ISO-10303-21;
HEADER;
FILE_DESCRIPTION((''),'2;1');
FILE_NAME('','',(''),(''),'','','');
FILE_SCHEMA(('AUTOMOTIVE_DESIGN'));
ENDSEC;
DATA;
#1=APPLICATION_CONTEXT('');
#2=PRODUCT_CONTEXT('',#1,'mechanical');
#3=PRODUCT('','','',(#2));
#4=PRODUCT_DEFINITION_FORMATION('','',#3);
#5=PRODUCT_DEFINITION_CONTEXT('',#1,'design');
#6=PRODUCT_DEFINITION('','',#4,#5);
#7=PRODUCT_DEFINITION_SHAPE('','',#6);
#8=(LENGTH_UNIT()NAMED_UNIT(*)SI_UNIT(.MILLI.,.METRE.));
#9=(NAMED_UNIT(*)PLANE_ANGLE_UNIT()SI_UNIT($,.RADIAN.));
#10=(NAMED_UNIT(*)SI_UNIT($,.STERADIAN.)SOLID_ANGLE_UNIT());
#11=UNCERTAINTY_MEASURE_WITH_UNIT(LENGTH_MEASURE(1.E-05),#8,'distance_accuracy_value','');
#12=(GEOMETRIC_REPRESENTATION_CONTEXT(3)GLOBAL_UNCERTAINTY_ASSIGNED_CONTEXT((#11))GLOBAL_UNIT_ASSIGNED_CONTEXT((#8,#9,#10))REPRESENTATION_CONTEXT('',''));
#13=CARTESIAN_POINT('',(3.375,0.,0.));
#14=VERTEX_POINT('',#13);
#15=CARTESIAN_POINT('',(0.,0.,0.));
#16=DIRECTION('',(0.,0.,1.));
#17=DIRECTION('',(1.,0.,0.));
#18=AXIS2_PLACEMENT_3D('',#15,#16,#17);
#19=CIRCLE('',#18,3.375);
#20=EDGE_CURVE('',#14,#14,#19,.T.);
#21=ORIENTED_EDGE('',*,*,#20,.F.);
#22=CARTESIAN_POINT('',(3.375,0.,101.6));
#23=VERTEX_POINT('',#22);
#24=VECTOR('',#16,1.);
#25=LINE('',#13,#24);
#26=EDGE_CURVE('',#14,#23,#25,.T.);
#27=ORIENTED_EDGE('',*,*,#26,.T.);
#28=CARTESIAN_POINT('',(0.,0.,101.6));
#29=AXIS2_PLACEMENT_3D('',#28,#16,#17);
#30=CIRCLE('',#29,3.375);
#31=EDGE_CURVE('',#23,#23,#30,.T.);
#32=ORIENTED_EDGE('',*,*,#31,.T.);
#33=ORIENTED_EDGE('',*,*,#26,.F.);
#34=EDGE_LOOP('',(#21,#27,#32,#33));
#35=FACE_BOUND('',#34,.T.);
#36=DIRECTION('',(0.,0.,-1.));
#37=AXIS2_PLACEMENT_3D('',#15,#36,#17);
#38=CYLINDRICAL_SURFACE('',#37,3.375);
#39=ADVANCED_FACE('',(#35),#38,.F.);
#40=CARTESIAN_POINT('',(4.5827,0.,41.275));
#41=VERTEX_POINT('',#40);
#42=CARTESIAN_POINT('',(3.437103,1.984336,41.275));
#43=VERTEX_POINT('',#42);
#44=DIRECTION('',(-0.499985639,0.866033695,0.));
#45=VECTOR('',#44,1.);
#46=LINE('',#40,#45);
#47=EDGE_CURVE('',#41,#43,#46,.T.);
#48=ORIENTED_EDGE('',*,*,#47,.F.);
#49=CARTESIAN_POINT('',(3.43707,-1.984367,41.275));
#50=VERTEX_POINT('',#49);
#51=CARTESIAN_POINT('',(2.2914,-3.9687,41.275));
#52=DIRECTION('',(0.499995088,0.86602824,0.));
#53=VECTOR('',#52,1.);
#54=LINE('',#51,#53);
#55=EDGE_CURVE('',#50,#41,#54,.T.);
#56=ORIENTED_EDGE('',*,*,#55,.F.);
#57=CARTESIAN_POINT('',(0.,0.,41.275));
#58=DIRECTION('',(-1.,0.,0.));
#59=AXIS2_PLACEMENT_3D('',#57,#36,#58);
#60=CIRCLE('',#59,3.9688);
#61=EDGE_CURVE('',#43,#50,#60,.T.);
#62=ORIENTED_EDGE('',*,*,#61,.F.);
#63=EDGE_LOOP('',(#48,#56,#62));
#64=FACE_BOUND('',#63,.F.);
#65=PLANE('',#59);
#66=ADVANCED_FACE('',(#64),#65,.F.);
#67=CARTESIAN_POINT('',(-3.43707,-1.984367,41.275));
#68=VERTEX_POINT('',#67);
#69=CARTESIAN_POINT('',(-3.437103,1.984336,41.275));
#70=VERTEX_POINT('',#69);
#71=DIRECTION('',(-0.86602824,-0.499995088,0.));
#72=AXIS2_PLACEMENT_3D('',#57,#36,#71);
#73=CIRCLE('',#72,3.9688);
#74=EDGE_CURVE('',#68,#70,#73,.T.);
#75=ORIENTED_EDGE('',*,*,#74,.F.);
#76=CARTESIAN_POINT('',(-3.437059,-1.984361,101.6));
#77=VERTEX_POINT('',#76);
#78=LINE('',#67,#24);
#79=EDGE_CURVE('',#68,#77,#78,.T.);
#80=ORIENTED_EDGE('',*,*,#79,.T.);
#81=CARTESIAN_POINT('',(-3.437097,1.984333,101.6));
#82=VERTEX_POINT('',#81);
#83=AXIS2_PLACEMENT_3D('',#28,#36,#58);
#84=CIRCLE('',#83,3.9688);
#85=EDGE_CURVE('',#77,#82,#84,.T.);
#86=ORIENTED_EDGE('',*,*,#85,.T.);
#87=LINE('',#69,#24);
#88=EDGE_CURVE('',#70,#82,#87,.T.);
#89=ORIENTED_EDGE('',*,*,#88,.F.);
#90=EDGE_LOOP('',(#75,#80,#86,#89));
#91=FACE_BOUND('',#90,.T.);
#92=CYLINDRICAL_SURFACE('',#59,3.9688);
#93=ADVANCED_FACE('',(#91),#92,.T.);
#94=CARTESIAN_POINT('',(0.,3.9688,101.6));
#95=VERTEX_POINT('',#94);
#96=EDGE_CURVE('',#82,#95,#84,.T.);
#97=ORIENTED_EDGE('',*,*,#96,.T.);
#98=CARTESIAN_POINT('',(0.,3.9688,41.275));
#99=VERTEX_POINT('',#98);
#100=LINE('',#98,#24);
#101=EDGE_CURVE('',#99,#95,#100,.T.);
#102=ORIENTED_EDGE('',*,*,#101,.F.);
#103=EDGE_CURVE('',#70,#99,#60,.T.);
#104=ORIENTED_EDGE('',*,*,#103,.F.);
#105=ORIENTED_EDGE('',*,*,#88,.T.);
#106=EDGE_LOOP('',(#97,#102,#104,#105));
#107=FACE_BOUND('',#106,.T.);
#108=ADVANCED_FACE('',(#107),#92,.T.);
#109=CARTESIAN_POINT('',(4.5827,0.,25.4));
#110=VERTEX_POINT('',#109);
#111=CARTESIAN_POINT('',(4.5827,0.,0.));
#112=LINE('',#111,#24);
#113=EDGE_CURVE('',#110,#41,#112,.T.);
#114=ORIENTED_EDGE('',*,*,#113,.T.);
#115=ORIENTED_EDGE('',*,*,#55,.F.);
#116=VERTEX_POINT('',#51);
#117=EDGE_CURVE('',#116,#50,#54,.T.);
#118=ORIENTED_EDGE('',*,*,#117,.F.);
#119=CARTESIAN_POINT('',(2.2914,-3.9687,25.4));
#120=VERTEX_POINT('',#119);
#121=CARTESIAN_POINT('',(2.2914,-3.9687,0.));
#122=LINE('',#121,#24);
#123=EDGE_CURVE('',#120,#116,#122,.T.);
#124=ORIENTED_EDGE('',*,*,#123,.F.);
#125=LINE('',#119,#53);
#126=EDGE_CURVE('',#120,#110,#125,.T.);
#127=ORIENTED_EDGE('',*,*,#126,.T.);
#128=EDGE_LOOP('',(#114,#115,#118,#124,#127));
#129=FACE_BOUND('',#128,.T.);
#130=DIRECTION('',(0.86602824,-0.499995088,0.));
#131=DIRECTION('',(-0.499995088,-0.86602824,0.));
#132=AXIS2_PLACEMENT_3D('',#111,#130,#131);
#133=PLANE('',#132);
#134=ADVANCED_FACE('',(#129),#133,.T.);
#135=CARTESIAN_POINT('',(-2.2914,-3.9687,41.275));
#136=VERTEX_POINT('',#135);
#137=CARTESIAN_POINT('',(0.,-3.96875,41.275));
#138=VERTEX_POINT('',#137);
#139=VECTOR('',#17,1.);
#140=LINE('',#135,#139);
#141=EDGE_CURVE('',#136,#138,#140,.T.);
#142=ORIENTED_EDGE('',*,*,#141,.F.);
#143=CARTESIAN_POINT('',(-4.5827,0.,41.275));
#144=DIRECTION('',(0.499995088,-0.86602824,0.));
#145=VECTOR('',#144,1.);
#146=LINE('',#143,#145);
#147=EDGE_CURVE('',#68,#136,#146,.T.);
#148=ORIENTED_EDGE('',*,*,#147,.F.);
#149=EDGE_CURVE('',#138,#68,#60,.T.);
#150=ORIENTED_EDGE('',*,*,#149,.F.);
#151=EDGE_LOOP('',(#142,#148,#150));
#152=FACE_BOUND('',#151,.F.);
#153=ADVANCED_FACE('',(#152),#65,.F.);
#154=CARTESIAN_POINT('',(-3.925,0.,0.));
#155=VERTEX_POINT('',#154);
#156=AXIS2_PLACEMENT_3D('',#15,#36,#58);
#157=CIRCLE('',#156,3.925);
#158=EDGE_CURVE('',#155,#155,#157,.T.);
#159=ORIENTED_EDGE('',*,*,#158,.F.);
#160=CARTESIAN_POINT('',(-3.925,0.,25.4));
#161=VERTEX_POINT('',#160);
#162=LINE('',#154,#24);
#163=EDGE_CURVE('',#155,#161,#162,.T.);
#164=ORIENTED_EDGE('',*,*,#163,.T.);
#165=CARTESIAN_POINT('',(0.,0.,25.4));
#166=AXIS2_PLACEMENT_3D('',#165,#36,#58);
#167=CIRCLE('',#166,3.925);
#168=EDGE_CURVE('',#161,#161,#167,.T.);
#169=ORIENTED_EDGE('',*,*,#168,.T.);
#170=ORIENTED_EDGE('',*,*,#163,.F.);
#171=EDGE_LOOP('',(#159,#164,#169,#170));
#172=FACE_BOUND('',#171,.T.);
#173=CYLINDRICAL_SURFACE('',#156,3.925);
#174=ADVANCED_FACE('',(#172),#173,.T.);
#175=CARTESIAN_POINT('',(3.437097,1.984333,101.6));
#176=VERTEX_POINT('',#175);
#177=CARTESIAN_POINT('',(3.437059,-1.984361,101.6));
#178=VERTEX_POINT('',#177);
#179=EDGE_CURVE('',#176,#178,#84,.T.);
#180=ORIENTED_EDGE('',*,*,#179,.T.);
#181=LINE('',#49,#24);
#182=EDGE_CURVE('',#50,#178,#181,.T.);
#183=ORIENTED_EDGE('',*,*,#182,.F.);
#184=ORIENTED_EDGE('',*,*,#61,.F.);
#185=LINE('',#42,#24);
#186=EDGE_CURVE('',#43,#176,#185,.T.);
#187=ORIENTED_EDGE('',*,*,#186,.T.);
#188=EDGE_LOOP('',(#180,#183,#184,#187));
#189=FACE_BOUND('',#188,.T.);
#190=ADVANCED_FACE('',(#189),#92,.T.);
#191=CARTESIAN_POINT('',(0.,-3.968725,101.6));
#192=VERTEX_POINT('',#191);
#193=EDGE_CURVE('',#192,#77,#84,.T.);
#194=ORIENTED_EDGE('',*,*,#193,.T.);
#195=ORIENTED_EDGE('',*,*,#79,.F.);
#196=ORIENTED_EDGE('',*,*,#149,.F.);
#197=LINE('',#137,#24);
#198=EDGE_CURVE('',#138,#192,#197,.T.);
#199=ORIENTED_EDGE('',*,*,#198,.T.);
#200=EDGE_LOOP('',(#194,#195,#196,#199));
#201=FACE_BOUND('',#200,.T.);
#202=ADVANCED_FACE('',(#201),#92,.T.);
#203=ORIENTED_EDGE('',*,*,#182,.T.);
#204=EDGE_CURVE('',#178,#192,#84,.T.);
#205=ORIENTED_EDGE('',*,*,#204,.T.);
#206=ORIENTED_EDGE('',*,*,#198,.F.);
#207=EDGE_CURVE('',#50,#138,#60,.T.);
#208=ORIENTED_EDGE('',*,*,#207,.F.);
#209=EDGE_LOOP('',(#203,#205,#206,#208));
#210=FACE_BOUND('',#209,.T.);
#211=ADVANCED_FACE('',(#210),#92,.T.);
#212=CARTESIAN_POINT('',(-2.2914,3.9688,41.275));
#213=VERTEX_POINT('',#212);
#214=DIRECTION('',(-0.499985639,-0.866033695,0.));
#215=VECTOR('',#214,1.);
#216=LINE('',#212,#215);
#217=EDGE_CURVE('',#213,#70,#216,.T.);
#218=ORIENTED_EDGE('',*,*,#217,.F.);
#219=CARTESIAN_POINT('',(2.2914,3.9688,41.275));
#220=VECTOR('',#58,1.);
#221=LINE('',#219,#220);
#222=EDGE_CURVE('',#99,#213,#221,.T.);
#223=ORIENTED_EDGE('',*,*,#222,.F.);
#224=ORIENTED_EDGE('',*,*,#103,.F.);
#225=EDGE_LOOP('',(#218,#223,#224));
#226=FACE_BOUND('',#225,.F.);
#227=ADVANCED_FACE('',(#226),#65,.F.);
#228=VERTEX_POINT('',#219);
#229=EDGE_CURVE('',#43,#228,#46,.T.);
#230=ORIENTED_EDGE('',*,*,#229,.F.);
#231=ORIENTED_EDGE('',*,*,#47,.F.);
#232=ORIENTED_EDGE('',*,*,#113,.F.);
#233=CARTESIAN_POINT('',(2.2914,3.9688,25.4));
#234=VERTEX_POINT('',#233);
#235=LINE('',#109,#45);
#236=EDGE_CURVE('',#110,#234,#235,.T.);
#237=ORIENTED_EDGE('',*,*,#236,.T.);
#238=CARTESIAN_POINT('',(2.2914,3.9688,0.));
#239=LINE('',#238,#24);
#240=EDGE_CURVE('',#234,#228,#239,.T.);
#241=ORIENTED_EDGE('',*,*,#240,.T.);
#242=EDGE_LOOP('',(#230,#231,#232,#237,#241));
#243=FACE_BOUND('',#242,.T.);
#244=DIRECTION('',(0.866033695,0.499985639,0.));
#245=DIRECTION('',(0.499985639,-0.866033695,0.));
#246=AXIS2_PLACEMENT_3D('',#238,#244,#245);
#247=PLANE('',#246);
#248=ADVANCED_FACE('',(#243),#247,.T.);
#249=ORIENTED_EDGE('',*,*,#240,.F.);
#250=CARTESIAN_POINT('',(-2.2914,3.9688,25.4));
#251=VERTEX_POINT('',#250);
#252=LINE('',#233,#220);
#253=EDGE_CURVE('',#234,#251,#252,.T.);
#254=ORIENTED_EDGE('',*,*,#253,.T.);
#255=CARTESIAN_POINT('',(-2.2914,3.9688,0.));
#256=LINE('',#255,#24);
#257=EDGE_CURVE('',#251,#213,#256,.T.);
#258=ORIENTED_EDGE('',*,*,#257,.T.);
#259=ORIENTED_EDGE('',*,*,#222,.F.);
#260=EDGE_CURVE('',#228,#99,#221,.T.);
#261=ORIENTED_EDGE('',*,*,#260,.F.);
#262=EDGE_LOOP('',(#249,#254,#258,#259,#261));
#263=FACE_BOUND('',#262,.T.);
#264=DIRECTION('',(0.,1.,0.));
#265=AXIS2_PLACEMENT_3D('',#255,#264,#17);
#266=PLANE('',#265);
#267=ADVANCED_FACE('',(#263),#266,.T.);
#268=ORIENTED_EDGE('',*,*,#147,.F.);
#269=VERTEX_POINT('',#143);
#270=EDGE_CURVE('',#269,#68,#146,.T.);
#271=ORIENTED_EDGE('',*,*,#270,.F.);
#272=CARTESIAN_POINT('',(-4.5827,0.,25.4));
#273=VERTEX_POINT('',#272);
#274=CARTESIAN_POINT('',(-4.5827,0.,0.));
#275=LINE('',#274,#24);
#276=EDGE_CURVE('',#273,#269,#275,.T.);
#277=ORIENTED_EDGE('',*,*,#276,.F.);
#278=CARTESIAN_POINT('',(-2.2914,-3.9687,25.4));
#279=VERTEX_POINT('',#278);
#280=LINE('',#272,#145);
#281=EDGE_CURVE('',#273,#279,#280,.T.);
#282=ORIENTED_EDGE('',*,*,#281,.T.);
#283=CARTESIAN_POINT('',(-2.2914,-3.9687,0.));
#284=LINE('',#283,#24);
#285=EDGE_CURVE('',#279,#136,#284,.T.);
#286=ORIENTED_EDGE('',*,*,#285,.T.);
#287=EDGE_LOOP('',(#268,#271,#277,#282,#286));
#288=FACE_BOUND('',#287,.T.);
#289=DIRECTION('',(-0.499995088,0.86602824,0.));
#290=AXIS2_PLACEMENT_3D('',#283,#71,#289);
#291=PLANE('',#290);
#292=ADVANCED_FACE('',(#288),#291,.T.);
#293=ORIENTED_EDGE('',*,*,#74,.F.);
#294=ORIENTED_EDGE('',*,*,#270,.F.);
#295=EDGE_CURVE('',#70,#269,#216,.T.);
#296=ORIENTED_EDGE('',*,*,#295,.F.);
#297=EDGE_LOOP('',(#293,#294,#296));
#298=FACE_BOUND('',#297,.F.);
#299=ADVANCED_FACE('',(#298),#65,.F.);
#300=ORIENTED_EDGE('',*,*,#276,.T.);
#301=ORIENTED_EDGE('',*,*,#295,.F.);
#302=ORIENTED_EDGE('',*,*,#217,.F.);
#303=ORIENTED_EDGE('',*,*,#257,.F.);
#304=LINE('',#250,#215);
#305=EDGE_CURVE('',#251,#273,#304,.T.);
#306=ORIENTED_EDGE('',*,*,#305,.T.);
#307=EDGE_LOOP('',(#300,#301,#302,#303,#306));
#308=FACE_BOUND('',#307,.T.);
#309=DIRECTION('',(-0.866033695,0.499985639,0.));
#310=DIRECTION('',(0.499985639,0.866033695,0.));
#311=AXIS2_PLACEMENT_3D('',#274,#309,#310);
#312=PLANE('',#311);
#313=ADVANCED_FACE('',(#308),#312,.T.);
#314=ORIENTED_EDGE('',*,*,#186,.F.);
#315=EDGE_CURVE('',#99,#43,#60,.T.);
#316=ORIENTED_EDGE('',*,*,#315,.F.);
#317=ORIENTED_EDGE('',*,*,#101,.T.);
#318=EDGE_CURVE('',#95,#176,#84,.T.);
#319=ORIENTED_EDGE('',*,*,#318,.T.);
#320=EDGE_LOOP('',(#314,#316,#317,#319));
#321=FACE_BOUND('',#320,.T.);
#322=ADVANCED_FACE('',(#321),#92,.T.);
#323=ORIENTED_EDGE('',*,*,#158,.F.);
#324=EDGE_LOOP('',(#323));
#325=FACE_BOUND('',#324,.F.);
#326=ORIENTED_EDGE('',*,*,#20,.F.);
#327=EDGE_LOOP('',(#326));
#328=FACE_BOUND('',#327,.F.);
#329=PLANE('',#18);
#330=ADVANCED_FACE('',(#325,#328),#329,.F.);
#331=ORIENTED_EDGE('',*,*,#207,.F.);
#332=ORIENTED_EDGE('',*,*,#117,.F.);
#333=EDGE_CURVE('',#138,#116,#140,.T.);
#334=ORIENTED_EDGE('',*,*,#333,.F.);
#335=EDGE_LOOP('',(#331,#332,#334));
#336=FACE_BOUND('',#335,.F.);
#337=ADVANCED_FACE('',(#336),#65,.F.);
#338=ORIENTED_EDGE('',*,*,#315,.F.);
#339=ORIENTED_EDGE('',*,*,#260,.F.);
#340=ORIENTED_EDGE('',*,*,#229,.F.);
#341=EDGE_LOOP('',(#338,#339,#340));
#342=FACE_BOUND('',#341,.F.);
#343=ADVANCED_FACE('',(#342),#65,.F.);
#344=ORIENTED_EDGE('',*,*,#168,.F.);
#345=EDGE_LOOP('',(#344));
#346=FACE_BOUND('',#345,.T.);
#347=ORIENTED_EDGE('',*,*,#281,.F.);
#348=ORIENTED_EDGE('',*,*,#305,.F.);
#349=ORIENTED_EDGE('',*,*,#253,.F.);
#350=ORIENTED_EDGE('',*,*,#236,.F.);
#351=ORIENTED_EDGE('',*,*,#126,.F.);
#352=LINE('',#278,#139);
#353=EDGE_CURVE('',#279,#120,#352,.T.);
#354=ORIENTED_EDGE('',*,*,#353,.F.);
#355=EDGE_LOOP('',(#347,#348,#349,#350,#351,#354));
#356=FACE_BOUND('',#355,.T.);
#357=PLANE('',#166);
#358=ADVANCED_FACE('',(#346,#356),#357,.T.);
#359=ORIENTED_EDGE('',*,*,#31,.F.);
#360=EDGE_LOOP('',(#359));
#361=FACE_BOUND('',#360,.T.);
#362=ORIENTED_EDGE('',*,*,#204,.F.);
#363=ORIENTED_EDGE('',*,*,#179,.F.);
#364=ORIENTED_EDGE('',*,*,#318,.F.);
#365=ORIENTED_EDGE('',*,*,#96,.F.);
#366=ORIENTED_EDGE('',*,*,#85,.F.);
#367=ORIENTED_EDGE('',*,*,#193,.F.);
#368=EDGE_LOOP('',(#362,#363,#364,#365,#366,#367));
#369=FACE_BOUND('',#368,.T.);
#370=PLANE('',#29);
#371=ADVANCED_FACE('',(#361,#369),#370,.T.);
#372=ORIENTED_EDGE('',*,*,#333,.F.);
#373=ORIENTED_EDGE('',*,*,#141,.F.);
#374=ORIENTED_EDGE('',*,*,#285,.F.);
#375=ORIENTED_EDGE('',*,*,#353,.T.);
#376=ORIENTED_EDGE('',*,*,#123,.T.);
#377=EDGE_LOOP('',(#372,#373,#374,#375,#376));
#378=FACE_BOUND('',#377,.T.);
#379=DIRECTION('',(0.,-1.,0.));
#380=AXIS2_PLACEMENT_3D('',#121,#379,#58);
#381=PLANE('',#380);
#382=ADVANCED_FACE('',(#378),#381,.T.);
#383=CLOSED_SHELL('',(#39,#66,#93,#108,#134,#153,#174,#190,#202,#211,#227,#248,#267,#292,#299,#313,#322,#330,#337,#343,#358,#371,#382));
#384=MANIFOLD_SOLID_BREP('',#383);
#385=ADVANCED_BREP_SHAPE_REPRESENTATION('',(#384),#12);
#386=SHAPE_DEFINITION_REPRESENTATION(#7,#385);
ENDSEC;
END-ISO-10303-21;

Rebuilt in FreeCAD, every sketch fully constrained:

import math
import FreeCAD as App
import Part
import Sketcher

V = App.Vector
Q = App.Units.Quantity

doc = App.newDocument("Part")
body = doc.addObject("PartDesign::Body", "Body")

# Sketch on XY plane
sketch1 = body.newObject("Sketcher::SketchObject", "Sketch")
sketch1.AttachmentSupport = (doc.getObject("XY_Plane"), [""])
sketch1.MapMode = "FlatFace"
sketch1.addGeometry([
    Part.LineSegment(V(4.6, 0, 0), V(2.3, 4, 0)),  # 0
    Part.LineSegment(V(2.3, 4, 0), V(-2.3, 4, 0)),  # 1
    Part.LineSegment(V(-2.3, 4, 0), V(-4.6, 0, 0)),  # 2
    Part.LineSegment(V(-4.6, 0, 0), V(-2.3, -4, 0)),  # 3
    Part.LineSegment(V(-2.3, -4, 0), V(2.3, -4, 0)),  # 4
    Part.LineSegment(V(2.3, -4, 0), V(4.6, 0, 0)),  # 5
    Part.Circle(V(0, 0, 0), V(0, 0, 1), 3.4),  # 6
], False)
sketch1.addConstraint([
    Sketcher.Constraint("Coincident", 0, 2, 1, 1),
    Sketcher.Constraint("Coincident", 1, 2, 2, 1),
    Sketcher.Constraint("Coincident", 2, 2, 3, 1),
    Sketcher.Constraint("Coincident", 3, 2, 4, 1),
    Sketcher.Constraint("Coincident", 4, 2, 5, 1),
    Sketcher.Constraint("Coincident", 5, 2, 0, 1),
    Sketcher.Constraint("Horizontal", 1),
    Sketcher.Constraint("Horizontal", 4),
    Sketcher.Constraint("Coincident", 6, 3, -1, 1),
    Sketcher.Constraint("Symmetric", 0, 2, 3, 2, -1, 1),
    Sketcher.Constraint("Symmetric", 2, 2, 5, 2, -1, 1),
    Sketcher.Constraint("PointOnObject", 2, 2, -1),
    Sketcher.Constraint("Parallel", 2, 5),
    Sketcher.Constraint("Vertical", 1, 2, 3, 2),
    Sketcher.Constraint("Diameter", 6, 6.75),
    Sketcher.Constraint("Angle", 0, Q("119.999 deg")),
    Sketcher.Constraint("DistanceY", 3, 2, 1, 2, Q("0.3125 in")),
    Sketcher.Constraint("DistanceX", 1, 2, 1, 1, 4.5828),
])
pad1 = body.newObject("PartDesign::Pad", "Pad")
pad1.Profile = sketch1
pad1.Length = Q("4 in")

# Sketch on XY plane
sketch2 = body.newObject("Sketcher::SketchObject", "Sketch001")
sketch2.AttachmentSupport = (doc.getObject("XY_Plane"), [""])
sketch2.MapMode = "FlatFace"
sketch2.addGeometry([
    Part.LineSegment(V(-4.6, 0, 0), V(-2.3, 4, 0)),  # 0
    Part.LineSegment(V(-2.3, 4, 0), V(2.3, 4, 0)),  # 1
    Part.LineSegment(V(2.3, 4, 0), V(4.6, 0, 0)),  # 2
    Part.LineSegment(V(4.6, 0, 0), V(2.3, -4, 0)),  # 3
    Part.LineSegment(V(2.3, -4, 0), V(-2.3, -4, 0)),  # 4
    Part.LineSegment(V(-2.3, -4, 0), V(-4.6, 0, 0)),  # 5
    Part.Circle(V(0, 0, 0), V(0, 0, 1), 3.9),  # 6
], False)
sketch2.addConstraint([
    Sketcher.Constraint("Coincident", 0, 2, 1, 1),
    Sketcher.Constraint("Coincident", 1, 2, 2, 1),
    Sketcher.Constraint("Coincident", 2, 2, 3, 1),
    Sketcher.Constraint("Coincident", 3, 2, 4, 1),
    Sketcher.Constraint("Coincident", 4, 2, 5, 1),
    Sketcher.Constraint("Coincident", 5, 2, 0, 1),
    Sketcher.Constraint("Horizontal", 1),
    Sketcher.Constraint("Horizontal", 4),
    Sketcher.Constraint("Coincident", 6, 3, -1, 1),
    Sketcher.Constraint("Symmetric", 0, 2, 3, 2, -1, 1),
    Sketcher.Constraint("Symmetric", 2, 2, 5, 2, -1, 1),
    Sketcher.Constraint("PointOnObject", 2, 2, -1),
    Sketcher.Constraint("Parallel", 2, 5),
    Sketcher.Constraint("Vertical", 1, 2, 3, 2),
    Sketcher.Constraint("Diameter", 6, 7.85),
    Sketcher.Constraint("Angle", 0, Q("60.001 deg")),
    Sketcher.Constraint("DistanceY", -1, 1, 0, 2, Q("0.156252 in")),
    Sketcher.Constraint("DistanceX", 1, 1, 1, 2, 4.5828),
])
pocket1 = body.newObject("PartDesign::Pocket", "Pocket")
pocket1.Profile = sketch2
pocket1.Length = Q("1 in")
pocket1.Reversed = True

# Sketch on XY plane
sketch3 = body.newObject("Sketcher::SketchObject", "Sketch002")
sketch3.AttachmentSupport = (doc.getObject("XY_Plane"), [""])
sketch3.MapMode = "FlatFace"
sketch3.AttachmentOffset = App.Placement(V(0, 0, 1.625 * 25.4), App.Rotation())
sketch3.addGeometry([
    Part.LineSegment(V(3.4, 2, 0), V(4.6, 0, 0)),  # 0
    Part.LineSegment(V(4.6, 0, 0), V(3.4, -2, 0)),  # 1
    Part.ArcOfCircle(Part.Circle(V(0, 0, 0), V(0, 0, 1), 4), math.radians(-30), math.radians(30)),  # 2
    Part.LineSegment(V(2.3, 4, 0), V(3.4, 2, 0)),  # 3
    Part.ArcOfCircle(Part.Circle(V(0, 0, 0), V(0, 0, 1), 4), math.radians(30), math.radians(90)),  # 4
    Part.LineSegment(V(0, 4, 0), V(2.3, 4, 0)),  # 5
    Part.ArcOfCircle(Part.Circle(V(0, 0, 0), V(0, 0, 1), 4), math.radians(-90), math.radians(-30)),  # 6
    Part.LineSegment(V(3.4, -2, 0), V(2.3, -4, 0)),  # 7
    Part.LineSegment(V(2.3, -4, 0), V(0, -4, 0)),  # 8
    Part.LineSegment(V(-2.3, 4, 0), V(0, 4, 0)),  # 9
    Part.ArcOfCircle(Part.Circle(V(0, 0, 0), V(0, 0, 1), 4), math.radians(90), math.radians(150)),  # 10
    Part.LineSegment(V(-3.4, 2, 0), V(-2.3, 4, 0)),  # 11
    Part.ArcOfCircle(Part.Circle(V(0, 0, 0), V(0, 0, 1), 4), math.radians(-150), math.radians(-90)),  # 12
    Part.LineSegment(V(0, -4, 0), V(-2.3, -4, 0)),  # 13
    Part.LineSegment(V(-2.3, -4, 0), V(-3.4, -2, 0)),  # 14
    Part.LineSegment(V(-4.6, 0, 0), V(-3.4, 2, 0)),  # 15
    Part.ArcOfCircle(Part.Circle(V(0, 0, 0), V(0, 0, 1), 4), math.radians(150), math.radians(210)),  # 16
    Part.LineSegment(V(-3.4, -2, 0), V(-4.6, 0, 0)),  # 17
], False)
sketch3.addConstraint([
    Sketcher.Constraint("Coincident", 0, 2, 1, 1),
    Sketcher.Constraint("Tangent", 1, 2, 2, 1),
    Sketcher.Constraint("Tangent", 2, 2, 0, 1),
    Sketcher.Constraint("Tangent", 3, 2, 4, 1),
    Sketcher.Constraint("Tangent", 4, 2, 5, 1),
    Sketcher.Constraint("Coincident", 5, 2, 3, 1),
    Sketcher.Constraint("Tangent", 6, 2, 7, 1),
    Sketcher.Constraint("Coincident", 7, 2, 8, 1),
    Sketcher.Constraint("Tangent", 8, 2, 6, 1),
    Sketcher.Constraint("Tangent", 9, 2, 10, 1),
    Sketcher.Constraint("Tangent", 10, 2, 11, 1),
    Sketcher.Constraint("Coincident", 11, 2, 9, 1),
    Sketcher.Constraint("Tangent", 12, 2, 13, 1),
    Sketcher.Constraint("Coincident", 13, 2, 14, 1),
    Sketcher.Constraint("Tangent", 14, 2, 12, 1),
    Sketcher.Constraint("Tangent", 15, 2, 16, 1),
    Sketcher.Constraint("Tangent", 16, 2, 17, 1),
    Sketcher.Constraint("Coincident", 17, 2, 15, 1),
    Sketcher.Constraint("Horizontal", 5),
    Sketcher.Constraint("Horizontal", 8),
    Sketcher.Constraint("Horizontal", 9),
    Sketcher.Constraint("Horizontal", 13),
    Sketcher.Constraint("Coincident", 2, 3, -1, 1),
    Sketcher.Constraint("Coincident", 4, 3, -1, 1),
    Sketcher.Constraint("Coincident", 6, 3, -1, 1),
    Sketcher.Constraint("Coincident", 10, 3, -1, 1),
    Sketcher.Constraint("Coincident", 12, 3, -1, 1),
    Sketcher.Constraint("Coincident", 16, 3, -1, 1),
    Sketcher.Constraint("Coincident", 3, 2, 2, 2),
    Sketcher.Constraint("Coincident", 6, 2, 1, 2),
    Sketcher.Constraint("Coincident", 15, 2, 10, 2),
    Sketcher.Constraint("Coincident", 16, 2, 14, 2),
    Sketcher.Constraint("Equal", 6, 10),
    Sketcher.Constraint("Symmetric", 0, 2, 17, 2, -1, 1),
    Sketcher.Constraint("PointOnObject", 0, 2, -1),
    Sketcher.Constraint("Equal", 1, 3),
    Sketcher.Constraint("Radius", 2, Q("0.156252 in")),
])
pocket2 = body.newObject("PartDesign::Pocket", "Pocket001")
pocket2.Profile = sketch3
pocket2.Type = "ThroughAll"
pocket2.Reversed = True

doc.recompute()
